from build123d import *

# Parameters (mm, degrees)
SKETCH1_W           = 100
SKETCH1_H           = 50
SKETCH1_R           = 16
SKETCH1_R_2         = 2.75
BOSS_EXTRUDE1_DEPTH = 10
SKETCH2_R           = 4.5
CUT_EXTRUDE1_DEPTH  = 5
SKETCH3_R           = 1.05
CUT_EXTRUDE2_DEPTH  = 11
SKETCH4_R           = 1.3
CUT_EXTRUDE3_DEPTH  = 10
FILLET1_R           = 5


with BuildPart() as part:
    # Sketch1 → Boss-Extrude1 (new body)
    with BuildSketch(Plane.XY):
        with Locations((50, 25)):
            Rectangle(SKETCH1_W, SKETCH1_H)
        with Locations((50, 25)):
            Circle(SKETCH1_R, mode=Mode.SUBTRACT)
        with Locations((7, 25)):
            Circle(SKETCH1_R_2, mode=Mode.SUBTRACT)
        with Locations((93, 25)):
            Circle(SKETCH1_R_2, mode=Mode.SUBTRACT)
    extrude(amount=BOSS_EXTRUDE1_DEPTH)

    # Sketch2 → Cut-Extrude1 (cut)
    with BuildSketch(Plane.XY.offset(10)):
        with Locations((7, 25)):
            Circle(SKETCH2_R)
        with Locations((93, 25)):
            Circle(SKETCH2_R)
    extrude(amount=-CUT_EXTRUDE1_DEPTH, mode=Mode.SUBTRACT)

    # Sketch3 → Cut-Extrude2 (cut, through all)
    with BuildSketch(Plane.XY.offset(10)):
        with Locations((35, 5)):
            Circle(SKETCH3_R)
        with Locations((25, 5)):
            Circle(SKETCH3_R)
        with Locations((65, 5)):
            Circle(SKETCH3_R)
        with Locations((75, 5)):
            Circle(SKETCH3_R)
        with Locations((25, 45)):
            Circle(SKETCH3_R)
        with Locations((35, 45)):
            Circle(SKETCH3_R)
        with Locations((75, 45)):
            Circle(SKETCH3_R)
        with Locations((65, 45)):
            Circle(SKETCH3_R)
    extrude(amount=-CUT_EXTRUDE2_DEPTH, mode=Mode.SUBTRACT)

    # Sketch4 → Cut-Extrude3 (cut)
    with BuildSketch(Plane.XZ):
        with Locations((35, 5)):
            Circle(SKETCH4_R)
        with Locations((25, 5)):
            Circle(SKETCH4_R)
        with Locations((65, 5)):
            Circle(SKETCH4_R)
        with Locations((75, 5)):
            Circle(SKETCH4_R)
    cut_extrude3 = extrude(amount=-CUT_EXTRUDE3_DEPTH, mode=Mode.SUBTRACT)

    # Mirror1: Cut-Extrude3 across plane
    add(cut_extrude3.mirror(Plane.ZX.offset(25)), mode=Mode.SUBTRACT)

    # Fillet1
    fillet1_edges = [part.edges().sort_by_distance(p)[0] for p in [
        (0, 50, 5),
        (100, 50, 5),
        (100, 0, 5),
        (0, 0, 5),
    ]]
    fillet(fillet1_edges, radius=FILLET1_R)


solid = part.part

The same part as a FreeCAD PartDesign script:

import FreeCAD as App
import Part
import Sketcher

V = App.Vector


def edges_at(feature, points):
    """Names of the edges that pass closest to the given points."""
    edges = feature.Shape.Edges
    near = lambda p: min(range(len(edges)), key=lambda i: edges[i].distToShape(Part.Vertex(*p))[0])
    return sorted({f"Edge{near(p) + 1}" for p in points})

doc = App.newDocument("Part")
body = doc.addObject("PartDesign::Body", "Body")

sketch1 = body.newObject("Sketcher::SketchObject", "Sketch")
sketch1.AttachmentSupport = (doc.getObject("XY_Plane"), [""])
sketch1.MapMode = "FlatFace"
sketch1.addGeometry([
    Part.LineSegment(V(0, 50, 0), V(0, 0, 0)),
    Part.LineSegment(V(0, 0, 0), V(100, 0, 0)),
    Part.LineSegment(V(100, 0, 0), V(100, 50, 0)),
    Part.LineSegment(V(100, 50, 0), V(0, 50, 0)),
    Part.Circle(V(7, 25, 0), V(0, 0, 1), 2.8),
    Part.Circle(V(50, 25, 0), V(0, 0, 1), 16),
    Part.Circle(V(93, 25, 0), V(0, 0, 1), 2.8),
], False)
sketch1.addConstraint([
    Sketcher.Constraint("Coincident", 0, 2, 1, 1),
    Sketcher.Constraint("Coincident", 1, 2, 2, 1),
    Sketcher.Constraint("Coincident", 2, 2, 3, 1),
    Sketcher.Constraint("Coincident", 3, 2, 0, 1),
    Sketcher.Constraint("Vertical", 0),
    Sketcher.Constraint("Horizontal", 1),
    Sketcher.Constraint("Vertical", 2),
    Sketcher.Constraint("Horizontal", 3),
    Sketcher.Constraint("Coincident", 0, 2, -1, 1),
    Sketcher.Constraint("Equal", 4, 6),
    Sketcher.Constraint("Horizontal", 4, 3, 5, 3),
    Sketcher.Constraint("Horizontal", 5, 3, 6, 3),
    Sketcher.Constraint("Diameter", 5, 32.0),
    Sketcher.Constraint("Diameter", 4, 5.5),
    Sketcher.Constraint("DistanceX", 1, 1, 1, 2, 100.0),
    Sketcher.Constraint("DistanceY", 0, 2, 0, 1, 50.0),
    Sketcher.Constraint("DistanceX", -1, 1, 4, 3, 7.0),
    Sketcher.Constraint("DistanceY", -1, 1, 4, 3, 25.0),
    Sketcher.Constraint("DistanceX", -1, 1, 5, 3, 50.0),
    Sketcher.Constraint("DistanceX", -1, 1, 6, 3, 93.0),
])
pad1 = body.newObject("PartDesign::Pad", "Pad")
pad1.Profile = sketch1
pad1.Length = 10

sketch2 = body.newObject("Sketcher::SketchObject", "Sketch001")
sketch2.AttachmentSupport = (doc.getObject("XY_Plane"), [""])
sketch2.MapMode = "FlatFace"
sketch2.AttachmentOffset = App.Placement(V(0, 0, 10), App.Rotation())
sketch2.addGeometry([
    Part.Circle(V(7, 25, 0), V(0, 0, 1), 4.5),
    Part.Circle(V(93, 25, 0), V(0, 0, 1), 4.5),
], False)
sketch2.addConstraint([
    Sketcher.Constraint("Equal", 0, 1),
    Sketcher.Constraint("Horizontal", 0, 3, 1, 3),
    Sketcher.Constraint("Diameter", 0, 9.0),
    Sketcher.Constraint("DistanceX", -1, 1, 0, 3, 7.0),
    Sketcher.Constraint("DistanceY", -1, 1, 0, 3, 25.0),
    Sketcher.Constraint("DistanceX", -1, 1, 1, 3, 93.0),
])
pocket1 = body.newObject("PartDesign::Pocket", "Pocket")
pocket1.Profile = sketch2
pocket1.Length = 5

sketch3 = body.newObject("Sketcher::SketchObject", "Sketch002")
sketch3.AttachmentSupport = (doc.getObject("XY_Plane"), [""])
sketch3.MapMode = "FlatFace"
sketch3.AttachmentOffset = App.Placement(V(0, 0, 10), App.Rotation())
sketch3.addGeometry([
    Part.Circle(V(35, 5, 0), V(0, 0, 1), 1.1),
    Part.Circle(V(25, 5, 0), V(0, 0, 1), 1.1),
    Part.Circle(V(65, 5, 0), V(0, 0, 1), 1.1),
    Part.Circle(V(75, 5, 0), V(0, 0, 1), 1.1),
    Part.Circle(V(25, 45, 0), V(0, 0, 1), 1.1),
    Part.Circle(V(35, 45, 0), V(0, 0, 1), 1.1),
    Part.Circle(V(75, 45, 0), V(0, 0, 1), 1.1),
    Part.Circle(V(65, 45, 0), V(0, 0, 1), 1.1),
], False)
sketch3.addConstraint([
    Sketcher.Constraint("Equal", 0, 1),
    Sketcher.Constraint("Equal", 1, 2),
    Sketcher.Constraint("Equal", 2, 3),
    Sketcher.Constraint("Equal", 3, 4),
    Sketcher.Constraint("Equal", 4, 5),
    Sketcher.Constraint("Equal", 5, 6),
    Sketcher.Constraint("Equal", 6, 7),
    Sketcher.Constraint("Horizontal", 0, 3, 1, 3),
    Sketcher.Constraint("Horizontal", 1, 3, 2, 3),
    Sketcher.Constraint("Horizontal", 2, 3, 3, 3),
    Sketcher.Constraint("Horizontal", 4, 3, 5, 3),
    Sketcher.Constraint("Horizontal", 5, 3, 6, 3),
    Sketcher.Constraint("Horizontal", 6, 3, 7, 3),
    Sketcher.Constraint("Vertical", 1, 3, 4, 3),
    Sketcher.Constraint("Vertical", 0, 3, 5, 3),
    Sketcher.Constraint("Vertical", 3, 3, 6, 3),
    Sketcher.Constraint("Vertical", 2, 3, 7, 3),
    Sketcher.Constraint("Diameter", 0, 2.1),
    Sketcher.Constraint("DistanceX", -1, 1, 0, 3, 35.0),
    Sketcher.Constraint("DistanceY", -1, 1, 0, 3, 5.0),
    Sketcher.Constraint("DistanceX", -1, 1, 1, 3, 25.0),
    Sketcher.Constraint("DistanceX", -1, 1, 2, 3, 65.0),
    Sketcher.Constraint("DistanceX", -1, 1, 3, 3, 75.0),
    Sketcher.Constraint("DistanceY", -1, 1, 4, 3, 45.0),
])
pocket2 = body.newObject("PartDesign::Pocket", "Pocket001")
pocket2.Profile = sketch3
pocket2.Type = "ThroughAll"

sketch4 = body.newObject("Sketcher::SketchObject", "Sketch003")
sketch4.AttachmentSupport = (doc.getObject("XZ_Plane"), [""])
sketch4.MapMode = "FlatFace"
sketch4.addGeometry([
    Part.Circle(V(35, 5, 0), V(0, 0, 1), 1.3),
    Part.Circle(V(25, 5, 0), V(0, 0, 1), 1.3),
    Part.Circle(V(65, 5, 0), V(0, 0, 1), 1.3),
    Part.Circle(V(75, 5, 0), V(0, 0, 1), 1.3),
], False)
sketch4.addConstraint([
    Sketcher.Constraint("Equal", 0, 1),
    Sketcher.Constraint("Equal", 1, 2),
    Sketcher.Constraint("Equal", 2, 3),
    Sketcher.Constraint("Horizontal", 0, 3, 1, 3),
    Sketcher.Constraint("Horizontal", 1, 3, 2, 3),
    Sketcher.Constraint("Horizontal", 2, 3, 3, 3),
    Sketcher.Constraint("Diameter", 0, 2.6),
    Sketcher.Constraint("DistanceX", -1, 1, 0, 3, 35.0),
    Sketcher.Constraint("DistanceY", -1, 1, 0, 3, 5.0),
    Sketcher.Constraint("DistanceX", -1, 1, 1, 3, 25.0),
    Sketcher.Constraint("DistanceX", -1, 1, 2, 3, 65.0),
    Sketcher.Constraint("DistanceX", -1, 1, 3, 3, 75.0),
])
pocket3 = body.newObject("PartDesign::Pocket", "Pocket002")
pocket3.Profile = sketch4
pocket3.Length = 10
doc.recompute()

datumplane = body.newObject("PartDesign::Plane", "DatumPlane")
datumplane.AttachmentSupport = (doc.getObject("XZ_Plane"), [""])
datumplane.MapMode = "FlatFace"
datumplane.AttachmentOffset = App.Placement(V(0, 0, -25), App.Rotation())
mirrored = body.newObject("PartDesign::Mirrored", "Mirrored")
mirrored.Originals = [pocket3]
mirrored.MirrorPlane = (datumplane, [""])
body.Tip = mirrored
doc.recompute()

fillet = body.newObject("PartDesign::Fillet", "Fillet")
fillet.Base = (mirrored, edges_at(mirrored, [
    (0, 50, 5),
    (100, 50, 5),
    (100, 0, 5),
    (0, 0, 5),
]))
fillet.Radius = 5

doc.recompute()
